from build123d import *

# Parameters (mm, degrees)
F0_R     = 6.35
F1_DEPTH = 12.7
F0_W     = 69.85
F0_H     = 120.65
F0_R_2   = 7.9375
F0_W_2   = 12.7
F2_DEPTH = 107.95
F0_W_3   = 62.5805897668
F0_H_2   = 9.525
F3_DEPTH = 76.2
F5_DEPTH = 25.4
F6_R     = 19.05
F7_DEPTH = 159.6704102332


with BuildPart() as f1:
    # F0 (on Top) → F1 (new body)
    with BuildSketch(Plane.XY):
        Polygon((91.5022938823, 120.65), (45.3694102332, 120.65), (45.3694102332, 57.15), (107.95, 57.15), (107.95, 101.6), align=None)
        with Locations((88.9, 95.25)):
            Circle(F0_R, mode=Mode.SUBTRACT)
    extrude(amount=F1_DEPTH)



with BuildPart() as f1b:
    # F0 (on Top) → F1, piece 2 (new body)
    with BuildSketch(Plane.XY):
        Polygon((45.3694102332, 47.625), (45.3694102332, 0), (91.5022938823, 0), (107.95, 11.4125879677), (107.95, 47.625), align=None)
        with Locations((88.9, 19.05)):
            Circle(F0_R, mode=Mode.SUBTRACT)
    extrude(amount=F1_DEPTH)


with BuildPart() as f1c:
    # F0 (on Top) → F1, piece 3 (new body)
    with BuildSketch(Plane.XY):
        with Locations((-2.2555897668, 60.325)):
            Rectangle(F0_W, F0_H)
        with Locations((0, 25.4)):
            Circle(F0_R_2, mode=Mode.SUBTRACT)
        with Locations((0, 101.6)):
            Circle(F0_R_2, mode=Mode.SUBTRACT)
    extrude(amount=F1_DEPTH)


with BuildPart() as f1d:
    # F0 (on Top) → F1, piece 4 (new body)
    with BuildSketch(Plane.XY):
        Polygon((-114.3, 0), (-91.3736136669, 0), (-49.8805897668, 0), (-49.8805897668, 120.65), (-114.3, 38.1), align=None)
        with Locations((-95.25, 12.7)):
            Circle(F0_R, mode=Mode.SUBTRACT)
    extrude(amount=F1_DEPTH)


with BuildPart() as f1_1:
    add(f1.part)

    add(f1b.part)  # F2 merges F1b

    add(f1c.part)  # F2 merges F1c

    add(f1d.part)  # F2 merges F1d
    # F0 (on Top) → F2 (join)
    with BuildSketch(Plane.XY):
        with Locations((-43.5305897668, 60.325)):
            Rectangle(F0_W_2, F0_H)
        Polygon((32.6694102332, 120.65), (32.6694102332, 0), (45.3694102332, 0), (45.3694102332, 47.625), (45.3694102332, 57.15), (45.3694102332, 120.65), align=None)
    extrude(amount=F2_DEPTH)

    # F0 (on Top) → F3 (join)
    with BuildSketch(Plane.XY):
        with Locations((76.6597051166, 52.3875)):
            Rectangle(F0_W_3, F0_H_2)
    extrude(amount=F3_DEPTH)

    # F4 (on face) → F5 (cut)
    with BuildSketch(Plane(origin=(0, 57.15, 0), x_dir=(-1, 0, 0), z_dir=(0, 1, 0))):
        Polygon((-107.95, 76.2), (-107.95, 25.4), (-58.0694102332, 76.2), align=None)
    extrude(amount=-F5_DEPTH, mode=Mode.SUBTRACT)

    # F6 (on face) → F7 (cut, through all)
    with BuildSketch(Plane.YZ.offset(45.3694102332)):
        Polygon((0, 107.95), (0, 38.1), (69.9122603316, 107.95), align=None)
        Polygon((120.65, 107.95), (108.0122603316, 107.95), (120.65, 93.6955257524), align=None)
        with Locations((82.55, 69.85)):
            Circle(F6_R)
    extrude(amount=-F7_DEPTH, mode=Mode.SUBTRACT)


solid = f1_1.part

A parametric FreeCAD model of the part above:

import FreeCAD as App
import Part
import Sketcher
from FreeCAD import Vector
Q = App.Units.Quantity


def add_polygon(sketch, points):
    """Adds a closed chain of lines whose ends are joined by coincident constraints."""
    first, n = sketch.GeometryCount, len(points)
    for a, b in zip(points, points[1:] + points[:1]):
        sketch.addGeometry(Part.LineSegment(App.Vector(*a, 0), App.Vector(*b, 0)), False)
    for i in range(n):
        sketch.addConstraint(Sketcher.Constraint("Coincident", first + i, 2, first + (i + 1) % n, 1))

doc = App.newDocument("Part")
body = doc.addObject("PartDesign::Body", "Body")

# Sketch on XY plane
sketch1 = body.newObject("Sketcher::SketchObject", "Sketch")
sketch1.AttachmentSupport = (doc.getObject("XY_Plane"), [""])
sketch1.MapMode = "FlatFace"
add_polygon(sketch1, [(92, 121), (45, 121), (45, 57), (108, 57), (108, 102)])  # lines 0-4
sketch1.addGeometry(Part.Circle(Vector(89, 95, 0), Vector(0, 0, 1), 6), False)  # 5
sketch1.addConstraint([
    Sketcher.Constraint("Horizontal", 0),
    Sketcher.Constraint("Vertical", 1),
    Sketcher.Constraint("Horizontal", 2),
    Sketcher.Constraint("Vertical", 3),
    Sketcher.Constraint("Diameter", 5, Q("0.5 in")),
    Sketcher.Constraint("DistanceY", 1, 2, 1, 1, Q("2.5 in")),
    Sketcher.Constraint("DistanceY", -1, 1, 3, 2, Q("4 in")),
    Sketcher.Constraint("DistanceY", 5, 3, 0, 2, Q("1 in")),
    Sketcher.Constraint("DistanceY", 3, 1, 3, 2, Q("1.75 in")),
    Sketcher.Constraint("DistanceX", -1, 1, 5, 3, Q("3.5 in")),
    Sketcher.Constraint("DistanceX", -1, 1, 2, 2, Q("4.25 in")),
    Sketcher.Constraint("DistanceX", 2, 1, 2, 2, 62.58059),
    Sketcher.Constraint("DistanceX", 0, 2, 0, 1, 46.132884),
])
pad1 = body.newObject("PartDesign::Pad", "Pad")
pad1.Profile = sketch1
pad1.Length = Q("0.5 in")
body2 = doc.addObject("PartDesign::Body", "Body001")

# Sketch on XY plane
sketch2 = body2.newObject("Sketcher::SketchObject", "Sketch001")
sketch2.AttachmentSupport = (doc.getObject("XY_Plane001"), [""])
sketch2.MapMode = "FlatFace"
add_polygon(sketch2, [(45, 48), (45, 0), (92, 0), (108, 11), (108, 48)])  # lines 0-4
sketch2.addGeometry(Part.Circle(Vector(89, 19, 0), Vector(0, 0, 1), 6), False)  # 5
sketch2.addConstraint([
    Sketcher.Constraint("Vertical", 0),
    Sketcher.Constraint("Horizontal", 1),
    Sketcher.Constraint("Vertical", 3),
    Sketcher.Constraint("Horizontal", 4),
    Sketcher.Constraint("PointOnObject", 0, 2, -1),
    Sketcher.Constraint("Diameter", 5, Q("0.5 in")),
    Sketcher.Constraint("DistanceX", -1, 1, 5, 3, Q("3.5 in")),
    Sketcher.Constraint("DistanceY", 0, 2, 0, 1, Q("1.875 in")),
    Sketcher.Constraint("DistanceY", -1, 1, 5, 3, Q("0.75 in")),
    Sketcher.Constraint("DistanceX", -1, 1, 2, 2, Q("4.25 in")),
    Sketcher.Constraint("DistanceX", 4, 2, 4, 1, 62.58059),
    Sketcher.Constraint("DistanceX", 1, 1, 1, 2, 46.132884),
    Sketcher.Constraint("DistanceY", 3, 1, 3, 2, 36.212412),
])
pad2 = body2.newObject("PartDesign::Pad", "Pad001")
pad2.Profile = sketch2
pad2.Length = Q("0.5 in")
body3 = doc.addObject("PartDesign::Body", "Body002")

# Sketch on XY plane
sketch3 = body3.newObject("Sketcher::SketchObject", "Sketch002")
sketch3.AttachmentSupport = (doc.getObject("XY_Plane002"), [""])
sketch3.MapMode = "FlatFace"
add_polygon(sketch3, [(-37, 121), (-37, 0), (33, 0), (33, 121)])  # lines 0-3
sketch3.addGeometry(Part.Circle(Vector(0, 25, 0), Vector(0, 0, 1), 8), False)  # 4
sketch3.addGeometry(Part.Circle(Vector(0, 102, 0), Vector(0, 0, 1), 8), False)  # 5
sketch3.addConstraint([
    Sketcher.Constraint("Vertical", 0),
    Sketcher.Constraint("Horizontal", 1),
    Sketcher.Constraint("Vertical", 2),
    Sketcher.Constraint("Horizontal", 3),
    Sketcher.Constraint("Equal", 4, 5),
    Sketcher.Constraint("PointOnObject", 4, 3, -2),
    Sketcher.Constraint("PointOnObject", 5, 3, -2),
    Sketcher.Constraint("PointOnObject", 0, 2, -1),
    Sketcher.Constraint("Diameter", 4, Q("0.625 in")),
    Sketcher.Constraint("DistanceY", -1, 1, 4, 3, Q("1 in")),
    Sketcher.Constraint("DistanceY", -1, 1, 5, 3, Q("4 in")),
    Sketcher.Constraint("DistanceX", 1, 1, 1, 2, Q("2.75 in")),
    Sketcher.Constraint("DistanceY", 0, 2, 0, 1, Q("4.75 in")),
    Sketcher.Constraint("DistanceX", 0, 2, -1, 1, 37.18059),
])
pad3 = body3.newObject("PartDesign::Pad", "Pad002")
pad3.Profile = sketch3
pad3.Length = Q("0.5 in")
body4 = doc.addObject("PartDesign::Body", "Body003")

# Sketch on XY plane
sketch4 = body4.newObject("Sketcher::SketchObject", "Sketch003")
sketch4.AttachmentSupport = (doc.getObject("XY_Plane003"), [""])
sketch4.MapMode = "FlatFace"
add_polygon(sketch4, [(-114, 0), (-50, 0), (-50, 121), (-114, 38)])  # lines 0-3
sketch4.addGeometry(Part.Circle(Vector(-95, 13, 0), Vector(0, 0, 1), 6), False)  # 4
sketch4.addConstraint([
    Sketcher.Constraint("Horizontal", 0),
    Sketcher.Constraint("Vertical", 1),
    Sketcher.Constraint("Vertical", 3),
    Sketcher.Constraint("PointOnObject", 0, 2, -1),
    Sketcher.Constraint("Diameter", 4, Q("0.5 in")),
    Sketcher.Constraint("DistanceY", 3, 2, 3, 1, Q("1.5 in")),
    Sketcher.Constraint("DistanceY", 4, 3, 2, 2, Q("1 in")),
    Sketcher.Constraint("DistanceY", 1, 1, 1, 2, Q("4.75 in")),
    Sketcher.Constraint("DistanceX", 2, 2, -1, 1, Q("4.5 in")),
    Sketcher.Constraint("DistanceX", 4, 3, -1, 1, Q("3.75 in")),
    Sketcher.Constraint("DistanceX", 0, 1, 0, 2, 64.41941),
])
pad4 = body4.newObject("PartDesign::Pad", "Pad003")
pad4.Profile = sketch4
pad4.Length = Q("0.5 in")
body.AllowCompound = True
doc.recompute()

boolean = body.newObject("PartDesign::Boolean", "Boolean")
boolean.Type = "Fuse"
boolean.addObjects([body2])
doc.recompute()

boolean2 = body.newObject("PartDesign::Boolean", "Boolean001")
boolean2.Type = "Fuse"
boolean2.addObjects([body3])
doc.recompute()

boolean3 = body.newObject("PartDesign::Boolean", "Boolean002")
boolean3.Type = "Fuse"
boolean3.addObjects([body4])

# Sketch on XY plane
sketch5 = body.newObject("Sketcher::SketchObject", "Sketch004")
sketch5.AttachmentSupport = (doc.getObject("XY_Plane"), [""])
sketch5.MapMode = "FlatFace"
add_polygon(sketch5, [(-50, 121), (-50, 0), (-37, 0), (-37, 121)])  # lines 0-3
add_polygon(sketch5, [(33, 121), (33, 0), (45, 0), (45, 121)])  # lines 4-7
sketch5.addConstraint([
    Sketcher.Constraint("Vertical", 0),
    Sketcher.Constraint("Horizontal", 1),
    Sketcher.Constraint("Vertical", 2),
    Sketcher.Constraint("Horizontal", 3),
    Sketcher.Constraint("Vertical", 4),
    Sketcher.Constraint("Horizontal", 5),
    Sketcher.Constraint("Vertical", 6),
    Sketcher.Constraint("Horizontal", 7),
    Sketcher.Constraint("PointOnObject", 0, 2, -1),
    Sketcher.Constraint("PointOnObject", 4, 2, -1),
    Sketcher.Constraint("Horizontal", 3, 2, 6, 2),
    Sketcher.Constraint("Equal", 3, 5),
    Sketcher.Constraint("DistanceX", 1, 1, 1, 2, Q("0.5 in")),
    Sketcher.Constraint("DistanceY", 0, 2, 0, 1, Q("4.75 in")),
    Sketcher.Constraint("DistanceX", 1, 2, 4, 2, Q("2.75 in")),
    Sketcher.Constraint("DistanceX", 0, 2, -1, 1, 49.88059),
])
pad5 = body.newObject("PartDesign::Pad", "Pad004")
pad5.Profile = sketch5
pad5.Length = Q("4.25 in")

# Sketch on XY plane
sketch6 = body.newObject("Sketcher::SketchObject", "Sketch005")
sketch6.AttachmentSupport = (doc.getObject("XY_Plane"), [""])
sketch6.MapMode = "FlatFace"
add_polygon(sketch6, [(45, 57), (45, 48), (108, 48), (108, 57)])  # lines 0-3
sketch6.addConstraint([
    Sketcher.Constraint("Vertical", 0),
    Sketcher.Constraint("Horizontal", 1),
    Sketcher.Constraint("Vertical", 2),
    Sketcher.Constraint("Horizontal", 3),
    Sketcher.Constraint("DistanceY", 0, 2, 0, 1, Q("0.375 in")),
    Sketcher.Constraint("DistanceX", -1, 1, 1, 2, Q("4.25 in")),
    Sketcher.Constraint("DistanceY", -1, 1, 2, 2, Q("2.25 in")),
    Sketcher.Constraint("DistanceX", 1, 1, 1, 2, 62.58059),
])
pad6 = body.newObject("PartDesign::Pad", "Pad005")
pad6.Profile = sketch6
pad6.Length = Q("3 in")

# Sketch on XZ plane
sketch7 = body.newObject("Sketcher::SketchObject", "Sketch006")
sketch7.AttachmentSupport = (doc.getObject("XZ_Plane"), [""])
sketch7.MapMode = "FlatFace"
sketch7.AttachmentOffset = App.Placement(Vector(0, 0, -2.25 * 25.4), App.Rotation())
add_polygon(sketch7, [(108, 76), (108, 25), (58, 76)])  # lines 0-2
sketch7.addConstraint([
    Sketcher.Constraint("Vertical", 0),
    Sketcher.Constraint("Horizontal", 2),
    Sketcher.Constraint("DistanceY", 0, 2, 0, 1, Q("2 in")),
    Sketcher.Constraint("DistanceY", -1, 1, 0, 2, Q("1 in")),
    Sketcher.Constraint("DistanceX", -1, 1, 0, 2, Q("4.25 in")),
    Sketcher.Constraint("DistanceX", 2, 1, 2, 2, 49.88059),
])
pocket1 = body.newObject("PartDesign::Pocket", "Pocket")
pocket1.Profile = sketch7
pocket1.Length = Q("1 in")
pocket1.Reversed = True

# Sketch on YZ plane
sketch8 = body.newObject("Sketcher::SketchObject", "Sketch007")
sketch8.AttachmentSupport = (doc.getObject("YZ_Plane"), [""])
sketch8.MapMode = "FlatFace"
sketch8.AttachmentOffset = App.Placement(Vector(0, 0, 45.36941), App.Rotation())
add_polygon(sketch8, [(0, 108), (0, 38), (70, 108)])  # lines 0-2
add_polygon(sketch8, [(121, 108), (108, 108), (121, 94)])  # lines 3-5
sketch8.addGeometry(Part.Circle(Vector(83, 70, 0), Vector(0, 0, 1), 19), False)  # 6
sketch8.addConstraint([
    Sketcher.Constraint("Vertical", 0),
    Sketcher.Constraint("Horizontal", 2),
    Sketcher.Constraint("Horizontal", 3),
    Sketcher.Constraint("Vertical", 5),
    Sketcher.Constraint("PointOnObject", 0, 2, -2),
    Sketcher.Constraint("Horizontal", 2, 2, 3, 2),
    Sketcher.Constraint("Diameter", 6, Q("1.5 in")),
    Sketcher.Constraint("DistanceY", 0, 2, 0, 1, Q("2.75 in")),
    Sketcher.Constraint("DistanceY", -1, 1, 0, 2, Q("1.5 in")),
    Sketcher.Constraint("DistanceY", 6, 3, 1, 2, Q("1.5 in")),
    Sketcher.Constraint("DistanceX", 1, 2, 3, 2, Q("1.5 in")),
    Sketcher.Constraint("DistanceX", 6, 3, 4, 2, Q("1.5 in")),
    Sketcher.Constraint("Distance", 4, Q("0.75 in")),
    Sketcher.Constraint("DistanceX", -1, 1, 6, 3, Q("3.25 in")),
    Sketcher.Constraint("DistanceX", 2, 2, 2, 1, 69.91226),
])
pocket2 = body.newObject("PartDesign::Pocket", "Pocket001")
pocket2.Profile = sketch8
pocket2.Type = "ThroughAll"

doc.recompute()
